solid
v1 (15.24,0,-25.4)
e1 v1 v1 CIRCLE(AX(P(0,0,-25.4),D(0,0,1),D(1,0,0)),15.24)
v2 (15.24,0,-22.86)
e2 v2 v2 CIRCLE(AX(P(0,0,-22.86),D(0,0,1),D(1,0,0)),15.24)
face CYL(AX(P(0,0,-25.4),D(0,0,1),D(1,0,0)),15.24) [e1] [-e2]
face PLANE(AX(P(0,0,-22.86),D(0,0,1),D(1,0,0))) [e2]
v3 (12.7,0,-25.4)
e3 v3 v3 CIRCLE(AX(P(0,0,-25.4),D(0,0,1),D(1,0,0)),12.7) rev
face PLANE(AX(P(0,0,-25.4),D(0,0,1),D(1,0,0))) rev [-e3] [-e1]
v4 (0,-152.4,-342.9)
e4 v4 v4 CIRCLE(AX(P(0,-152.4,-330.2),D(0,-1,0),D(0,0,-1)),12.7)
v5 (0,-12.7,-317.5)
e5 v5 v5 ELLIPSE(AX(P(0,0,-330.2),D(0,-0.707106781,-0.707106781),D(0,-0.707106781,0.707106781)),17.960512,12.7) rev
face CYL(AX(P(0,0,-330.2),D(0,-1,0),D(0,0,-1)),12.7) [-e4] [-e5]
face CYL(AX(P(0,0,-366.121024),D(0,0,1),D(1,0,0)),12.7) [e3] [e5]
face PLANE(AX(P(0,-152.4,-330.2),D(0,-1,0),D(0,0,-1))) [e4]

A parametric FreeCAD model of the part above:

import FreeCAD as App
import Part
import Sketcher
Q = App.Units.Quantity

doc = App.newDocument("Part")
body = doc.addObject("PartDesign::Body", "Body")

sketch1 = body.newObject("Sketcher::SketchObject", "Sketch")
sketch1.AttachmentSupport = (doc.getObject("XY_Plane"), [""])
sketch1.MapMode = "FlatFace"
sketch1.addGeometry(Part.Circle(App.Vector(0, 0, 0), App.Vector(0, 0, 1), 13), False)
sketch1.addConstraint([
    Sketcher.Constraint("Coincident", 0, 3, -1, 1),
    Sketcher.Constraint("Diameter", 0, Q("1 in")),
])

sketch2 = body.newObject("Sketcher::SketchObject", "Sketch001")
sketch2.AttachmentSupport = (doc.getObject("YZ_Plane"), [""])
sketch2.MapMode = "FlatFace"
sketch2.addGeometry([
    Part.LineSegment(App.Vector(0, 0, 0), App.Vector(0, -330, 0)),
    Part.LineSegment(App.Vector(0, -330, 0), App.Vector(-152, -330, 0)),
], False)
sketch2.addConstraint([
    Sketcher.Constraint("Coincident", 0, 2, 1, 1),
    Sketcher.Constraint("Vertical", 0),
    Sketcher.Constraint("Horizontal", 1),
    Sketcher.Constraint("Coincident", 0, 1, -1, 1),
    Sketcher.Constraint("DistanceX", 1, 2, 1, 1, Q("6 in")),
    Sketcher.Constraint("DistanceY", 0, 2, 0, 1, Q("13 in")),
])
doc.recompute()

additivepipe = body.newObject("PartDesign::AdditivePipe", "AdditivePipe")
additivepipe.Profile = sketch1
additivepipe.Spine = (sketch2, ["Edge1", "Edge2"])
additivepipe.Transition = "Right corner"

sketch3 = body.newObject("Sketcher::SketchObject", "Sketch002")
sketch3.AttachmentSupport = (doc.getObject("XY_Plane"), [""])
sketch3.MapMode = "FlatFace"
sketch3.addGeometry(Part.Circle(App.Vector(0, 0, 0), App.Vector(0, 0, 1), 15), False)
sketch3.addConstraint([
    Sketcher.Constraint("Coincident", 0, 3, -1, 1),
    Sketcher.Constraint("Diameter", 0, Q("1.2 in")),
])
pad1 = body.newObject("PartDesign::Pad", "Pad")
pad1.Profile = sketch3
pad1.Length = Q("1 in")
pad1.Reversed = True

sketch4 = body.newObject("Sketcher::SketchObject", "Sketch003")
sketch4.AttachmentSupport = (doc.getObject("XY_Plane"), [""])
sketch4.MapMode = "FlatFace"
sketch4.addGeometry(Part.Circle(App.Vector(0, 0, 0), App.Vector(0, 0, 1), 15), False)
sketch4.addConstraint([
    Sketcher.Constraint("Coincident", 0, 3, -1, 1),
    Sketcher.Constraint("Diameter", 0, Q("1.2 in")),
])
pocket1 = body.newObject("PartDesign::Pocket", "Pocket")
pocket1.Profile = sketch4
pocket1.Length = Q("0.9 in")

doc.recompute()
